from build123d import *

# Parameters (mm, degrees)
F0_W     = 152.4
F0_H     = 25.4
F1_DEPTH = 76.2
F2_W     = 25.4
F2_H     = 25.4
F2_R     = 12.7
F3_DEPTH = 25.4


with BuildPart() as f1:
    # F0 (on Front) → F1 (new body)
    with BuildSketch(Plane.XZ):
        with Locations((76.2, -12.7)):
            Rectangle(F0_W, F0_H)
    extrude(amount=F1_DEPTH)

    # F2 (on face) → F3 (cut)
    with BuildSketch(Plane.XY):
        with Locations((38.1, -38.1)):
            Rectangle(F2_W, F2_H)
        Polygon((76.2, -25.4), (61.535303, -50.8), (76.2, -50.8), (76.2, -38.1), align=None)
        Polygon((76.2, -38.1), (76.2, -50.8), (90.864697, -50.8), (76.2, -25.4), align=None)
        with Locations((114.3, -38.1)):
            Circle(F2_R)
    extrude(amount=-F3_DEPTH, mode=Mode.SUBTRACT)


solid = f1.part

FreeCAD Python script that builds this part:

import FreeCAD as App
import Part
import Sketcher
from FreeCAD import Vector
Q = App.Units.Quantity

doc = App.newDocument("Part")
body = doc.addObject("PartDesign::Body", "Body")

# Sketch on XZ plane
sketch1 = body.newObject("Sketcher::SketchObject", "Sketch")
sketch1.AttachmentSupport = (doc.getObject("XZ_Plane"), [""])
sketch1.MapMode = "FlatFace"
sketch1.addGeometry(Part.LineSegment(Vector(0, 0, 0), Vector(0, -25.4, 0)), False)
sketch1.addGeometry(Part.LineSegment(Vector(0, -25.4, 0), Vector(152.4, -25.4, 0)), False)
sketch1.addGeometry(Part.LineSegment(Vector(152.4, -25.4, 0), Vector(152.4, 0, 0)), False)
sketch1.addGeometry(Part.LineSegment(Vector(152.4, 0, 0), Vector(0, 0, 0)), False)
sketch1.addConstraint(Sketcher.Constraint("Coincident", 0, 2, 1, 1))
sketch1.addConstraint(Sketcher.Constraint("Coincident", 1, 2, 2, 1))
sketch1.addConstraint(Sketcher.Constraint("Coincident", 2, 2, 3, 1))
sketch1.addConstraint(Sketcher.Constraint("Coincident", 3, 2, 0, 1))
sketch1.addConstraint(Sketcher.Constraint("Vertical", 0))
sketch1.addConstraint(Sketcher.Constraint("Horizontal", 1))
sketch1.addConstraint(Sketcher.Constraint("Vertical", 2))
sketch1.addConstraint(Sketcher.Constraint("Horizontal", 3))
sketch1.addConstraint(Sketcher.Constraint("Coincident", 3, 2, -1, 1))
sketch1.addConstraint(Sketcher.Constraint("DistanceX", 1, 1, 1, 2, Q("6 in")))
sketch1.addConstraint(Sketcher.Constraint("DistanceY", 0, 2, 0, 1, Q("1 in")))
pad1 = body.newObject("PartDesign::Pad", "Pad")
pad1.Profile = sketch1
pad1.Length = Q("3 in")

# Sketch on XY plane
sketch2 = body.newObject("Sketcher::SketchObject", "Sketch001")
sketch2.AttachmentSupport = (doc.getObject("XY_Plane"), [""])
sketch2.MapMode = "FlatFace"
sketch2.addGeometry(Part.LineSegment(Vector(25.4, -25.4, 0), Vector(25.4, -50.8, 0)), False)
sketch2.addGeometry(Part.LineSegment(Vector(25.4, -50.8, 0), Vector(50.8, -50.8, 0)), False)
sketch2.addGeometry(Part.LineSegment(Vector(50.8, -50.8, 0), Vector(50.8, -25.4, 0)), False)
sketch2.addGeometry(Part.LineSegment(Vector(50.8, -25.4, 0), Vector(25.4, -25.4, 0)), False)
sketch2.addGeometry(Part.LineSegment(Vector(76.2, -25.4, 0), Vector(61.535303, -50.8, 0)), False)
sketch2.addGeometry(Part.LineSegment(Vector(61.535303, -50.8, 0), Vector(90.864697, -50.8, 0)), False)
sketch2.addGeometry(Part.LineSegment(Vector(90.864697, -50.8, 0), Vector(76.2, -25.4, 0)), False)
sketch2.addGeometry(Part.Circle(Vector(114.3, -38.1, 0), Vector(0, 0, 1), 12.7), False)
sketch2.addConstraint(Sketcher.Constraint("Coincident", 0, 2, 1, 1))
sketch2.addConstraint(Sketcher.Constraint("Coincident", 1, 2, 2, 1))
sketch2.addConstraint(Sketcher.Constraint("Coincident", 2, 2, 3, 1))
sketch2.addConstraint(Sketcher.Constraint("Coincident", 3, 2, 0, 1))
sketch2.addConstraint(Sketcher.Constraint("Coincident", 4, 2, 5, 1))
sketch2.addConstraint(Sketcher.Constraint("Coincident", 5, 2, 6, 1))
sketch2.addConstraint(Sketcher.Constraint("Coincident", 6, 2, 4, 1))
sketch2.addConstraint(Sketcher.Constraint("Vertical", 0))
sketch2.addConstraint(Sketcher.Constraint("Horizontal", 1))
sketch2.addConstraint(Sketcher.Constraint("Vertical", 2))
sketch2.addConstraint(Sketcher.Constraint("Horizontal", 3))
sketch2.addConstraint(Sketcher.Constraint("Horizontal", 5))
sketch2.addConstraint(Sketcher.Constraint("Horizontal", 1, 2, 4, 2))
sketch2.addConstraint(Sketcher.Constraint("Horizontal", 3, 2, 6, 2))
sketch2.addConstraint(Sketcher.Constraint("Equal", 3, 0))
sketch2.addConstraint(Sketcher.Constraint("Equal", 4, 6))
sketch2.addConstraint(Sketcher.Constraint("Diameter", 7, Q("1 in")))
sketch2.addConstraint(Sketcher.Constraint("DistanceX", 1, 1, 1, 2, Q("1 in")))
sketch2.addConstraint(Sketcher.Constraint("DistanceX", -1, 1, 0, 2, Q("1 in")))
sketch2.addConstraint(Sketcher.Constraint("DistanceY", 0, 2, -1, 1, Q("2 in")))
sketch2.addConstraint(Sketcher.Constraint("DistanceX", -1, 1, 6, 2, Q("3 in")))
sketch2.addConstraint(Sketcher.Constraint("Angle", 4, Q("-120 deg")))
sketch2.addConstraint(Sketcher.Constraint("DistanceX", -1, 1, 7, 3, Q("4.5 in")))
sketch2.addConstraint(Sketcher.Constraint("DistanceY", 7, 3, -1, 1, Q("1.5 in")))
pocket1 = body.newObject("PartDesign::Pocket", "Pocket")
pocket1.Profile = sketch2
pocket1.Length = Q("1 in")

doc.recompute()
